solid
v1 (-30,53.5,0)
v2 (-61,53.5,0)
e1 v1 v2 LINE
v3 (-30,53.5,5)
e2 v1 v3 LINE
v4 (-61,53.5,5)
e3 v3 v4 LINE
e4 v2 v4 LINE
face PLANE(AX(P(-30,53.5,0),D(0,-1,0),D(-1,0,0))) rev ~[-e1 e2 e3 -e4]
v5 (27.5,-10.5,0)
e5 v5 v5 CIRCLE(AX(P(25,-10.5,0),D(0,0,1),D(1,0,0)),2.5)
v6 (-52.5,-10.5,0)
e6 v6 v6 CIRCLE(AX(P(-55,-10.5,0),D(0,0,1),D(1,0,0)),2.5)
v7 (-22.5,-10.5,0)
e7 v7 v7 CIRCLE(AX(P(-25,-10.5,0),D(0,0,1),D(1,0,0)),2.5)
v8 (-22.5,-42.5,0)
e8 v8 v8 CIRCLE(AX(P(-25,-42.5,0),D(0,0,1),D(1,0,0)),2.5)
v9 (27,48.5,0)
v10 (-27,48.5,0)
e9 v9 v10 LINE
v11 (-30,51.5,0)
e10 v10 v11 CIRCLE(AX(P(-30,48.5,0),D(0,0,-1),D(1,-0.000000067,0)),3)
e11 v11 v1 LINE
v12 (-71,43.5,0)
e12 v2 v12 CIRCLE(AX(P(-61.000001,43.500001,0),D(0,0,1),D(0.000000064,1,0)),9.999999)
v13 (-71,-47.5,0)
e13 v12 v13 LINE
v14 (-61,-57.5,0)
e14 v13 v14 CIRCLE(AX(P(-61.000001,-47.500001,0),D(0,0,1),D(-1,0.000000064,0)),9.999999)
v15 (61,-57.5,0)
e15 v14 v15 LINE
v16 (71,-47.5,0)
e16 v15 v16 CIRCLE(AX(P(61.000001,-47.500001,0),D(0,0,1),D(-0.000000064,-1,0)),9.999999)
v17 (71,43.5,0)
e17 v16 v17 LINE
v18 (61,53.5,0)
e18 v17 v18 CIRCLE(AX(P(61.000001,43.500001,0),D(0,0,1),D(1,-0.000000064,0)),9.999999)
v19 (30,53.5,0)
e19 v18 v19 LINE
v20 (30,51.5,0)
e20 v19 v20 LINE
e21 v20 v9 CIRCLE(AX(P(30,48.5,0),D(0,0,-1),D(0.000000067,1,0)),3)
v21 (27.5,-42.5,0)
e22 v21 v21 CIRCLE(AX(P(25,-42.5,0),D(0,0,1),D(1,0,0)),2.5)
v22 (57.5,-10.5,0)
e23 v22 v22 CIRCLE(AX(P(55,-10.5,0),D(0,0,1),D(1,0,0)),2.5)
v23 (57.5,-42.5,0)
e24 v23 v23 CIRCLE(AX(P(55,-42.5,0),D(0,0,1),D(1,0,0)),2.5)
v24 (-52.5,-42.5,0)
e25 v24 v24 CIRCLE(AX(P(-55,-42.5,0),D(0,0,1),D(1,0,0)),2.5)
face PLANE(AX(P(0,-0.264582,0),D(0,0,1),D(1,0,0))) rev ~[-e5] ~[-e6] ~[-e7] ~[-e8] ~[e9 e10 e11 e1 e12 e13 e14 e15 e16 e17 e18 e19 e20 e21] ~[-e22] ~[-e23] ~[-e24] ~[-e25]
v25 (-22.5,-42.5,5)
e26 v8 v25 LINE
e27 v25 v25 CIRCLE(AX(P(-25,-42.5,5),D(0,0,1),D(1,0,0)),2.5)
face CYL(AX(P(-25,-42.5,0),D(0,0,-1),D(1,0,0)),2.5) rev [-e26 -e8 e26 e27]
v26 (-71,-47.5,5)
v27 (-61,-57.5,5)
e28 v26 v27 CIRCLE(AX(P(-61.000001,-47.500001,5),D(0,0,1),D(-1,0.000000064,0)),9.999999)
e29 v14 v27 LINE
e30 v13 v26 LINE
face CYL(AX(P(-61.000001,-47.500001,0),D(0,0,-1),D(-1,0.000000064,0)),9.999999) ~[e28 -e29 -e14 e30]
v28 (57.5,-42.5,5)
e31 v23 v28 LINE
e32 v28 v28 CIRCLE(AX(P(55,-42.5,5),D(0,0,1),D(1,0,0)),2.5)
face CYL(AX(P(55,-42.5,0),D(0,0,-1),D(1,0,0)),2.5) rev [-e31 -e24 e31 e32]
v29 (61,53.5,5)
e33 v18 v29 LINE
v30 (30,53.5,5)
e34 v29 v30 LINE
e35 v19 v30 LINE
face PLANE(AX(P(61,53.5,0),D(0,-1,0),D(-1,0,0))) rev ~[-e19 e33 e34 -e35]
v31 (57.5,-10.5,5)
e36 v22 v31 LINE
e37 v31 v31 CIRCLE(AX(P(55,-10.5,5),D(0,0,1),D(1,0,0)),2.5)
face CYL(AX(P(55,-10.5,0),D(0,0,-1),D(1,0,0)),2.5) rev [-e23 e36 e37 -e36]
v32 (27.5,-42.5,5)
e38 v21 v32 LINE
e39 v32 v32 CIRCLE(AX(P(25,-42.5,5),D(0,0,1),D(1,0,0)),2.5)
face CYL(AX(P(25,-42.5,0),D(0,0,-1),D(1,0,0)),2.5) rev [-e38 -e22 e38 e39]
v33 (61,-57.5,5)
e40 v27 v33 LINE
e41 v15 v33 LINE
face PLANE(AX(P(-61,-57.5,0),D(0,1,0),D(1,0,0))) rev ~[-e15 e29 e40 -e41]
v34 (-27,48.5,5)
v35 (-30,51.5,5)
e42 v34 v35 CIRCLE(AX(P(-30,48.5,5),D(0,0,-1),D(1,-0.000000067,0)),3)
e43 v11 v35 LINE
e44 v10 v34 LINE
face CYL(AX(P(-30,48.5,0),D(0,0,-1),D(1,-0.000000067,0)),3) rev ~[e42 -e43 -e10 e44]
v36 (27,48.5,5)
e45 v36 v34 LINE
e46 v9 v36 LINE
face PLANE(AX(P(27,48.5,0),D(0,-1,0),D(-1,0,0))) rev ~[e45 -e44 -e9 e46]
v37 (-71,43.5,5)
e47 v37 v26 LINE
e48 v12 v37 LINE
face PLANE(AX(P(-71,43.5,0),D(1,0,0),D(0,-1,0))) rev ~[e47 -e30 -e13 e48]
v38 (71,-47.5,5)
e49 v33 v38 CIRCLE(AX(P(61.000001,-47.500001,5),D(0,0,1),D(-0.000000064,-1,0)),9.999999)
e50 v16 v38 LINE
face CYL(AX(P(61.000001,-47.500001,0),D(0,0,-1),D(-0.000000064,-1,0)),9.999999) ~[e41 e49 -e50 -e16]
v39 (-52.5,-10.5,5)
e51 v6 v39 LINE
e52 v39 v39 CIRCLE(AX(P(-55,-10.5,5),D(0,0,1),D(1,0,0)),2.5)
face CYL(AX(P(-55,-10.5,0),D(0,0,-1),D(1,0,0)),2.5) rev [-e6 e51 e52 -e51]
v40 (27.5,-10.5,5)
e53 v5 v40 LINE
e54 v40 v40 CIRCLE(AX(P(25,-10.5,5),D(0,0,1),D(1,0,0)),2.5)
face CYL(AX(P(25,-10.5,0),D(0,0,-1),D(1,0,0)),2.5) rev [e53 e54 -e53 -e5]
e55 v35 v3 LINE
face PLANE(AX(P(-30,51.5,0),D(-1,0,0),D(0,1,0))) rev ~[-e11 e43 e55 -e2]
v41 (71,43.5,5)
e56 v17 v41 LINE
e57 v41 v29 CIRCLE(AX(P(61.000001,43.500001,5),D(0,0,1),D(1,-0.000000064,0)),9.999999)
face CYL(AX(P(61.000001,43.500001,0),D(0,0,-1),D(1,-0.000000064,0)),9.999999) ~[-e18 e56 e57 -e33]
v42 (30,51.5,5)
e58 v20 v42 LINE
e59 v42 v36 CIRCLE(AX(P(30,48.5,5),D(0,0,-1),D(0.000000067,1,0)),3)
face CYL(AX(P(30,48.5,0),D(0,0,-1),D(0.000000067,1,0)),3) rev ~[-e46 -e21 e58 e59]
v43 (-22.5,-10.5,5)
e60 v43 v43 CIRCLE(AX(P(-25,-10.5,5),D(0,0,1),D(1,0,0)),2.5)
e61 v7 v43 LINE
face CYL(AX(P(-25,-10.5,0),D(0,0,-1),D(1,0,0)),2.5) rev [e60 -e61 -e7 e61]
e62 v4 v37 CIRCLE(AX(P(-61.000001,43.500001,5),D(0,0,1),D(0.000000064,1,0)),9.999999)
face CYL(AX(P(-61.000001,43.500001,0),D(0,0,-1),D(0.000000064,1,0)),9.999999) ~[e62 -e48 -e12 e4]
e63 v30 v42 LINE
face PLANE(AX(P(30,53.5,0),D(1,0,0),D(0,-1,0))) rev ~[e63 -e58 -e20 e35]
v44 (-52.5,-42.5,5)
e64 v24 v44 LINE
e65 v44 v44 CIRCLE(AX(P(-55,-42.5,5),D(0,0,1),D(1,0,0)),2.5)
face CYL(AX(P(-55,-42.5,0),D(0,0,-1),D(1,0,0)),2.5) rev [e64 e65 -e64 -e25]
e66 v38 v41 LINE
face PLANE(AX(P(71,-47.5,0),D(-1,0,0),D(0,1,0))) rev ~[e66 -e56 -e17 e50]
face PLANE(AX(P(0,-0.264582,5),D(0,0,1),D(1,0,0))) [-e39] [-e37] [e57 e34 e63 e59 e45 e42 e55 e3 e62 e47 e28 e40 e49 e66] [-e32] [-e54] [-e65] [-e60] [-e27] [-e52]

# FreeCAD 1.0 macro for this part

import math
import FreeCAD as App
import Part
import Sketcher

V = App.Vector

doc = App.newDocument("Part")
body = doc.addObject("PartDesign::Body", "Body")

sketch1 = body.newObject("Sketcher::SketchObject", "Sketch")
sketch1.AttachmentSupport = (doc.getObject("XY_Plane"), [""])
sketch1.MapMode = "FlatFace"
sketch1.addGeometry([
    Part.ArcOfCircle(Part.Circle(V(30, 48.5, 0), V(0, 0, 1), 3), math.radians(-180), math.radians(90)),
    Part.LineSegment(V(27, 48.5, 0), V(-27, 48.5, 0)),
    Part.ArcOfCircle(Part.Circle(V(-30, 48.5, 0), V(0, 0, 1), 3), math.radians(90), math.radians(360)),
    Part.LineSegment(V(-30, 51.5, 0), V(-30, 53.5, 0)),
    Part.LineSegment(V(-30, 53.5, 0), V(-61, 53.5, 0)),
    Part.ArcOfCircle(Part.Circle(V(-61, 43.5, 0), V(0, 0, 1), 10), math.radians(90), math.radians(180)),
    Part.LineSegment(V(-71, 43.5, 0), V(-71, -47.5, 0)),
    Part.ArcOfCircle(Part.Circle(V(-61, -47.5, 0), V(0, 0, 1), 10), math.radians(180), math.radians(270)),
    Part.LineSegment(V(-61, -57.5, 0), V(61, -57.5, 0)),
    Part.ArcOfCircle(Part.Circle(V(61, -47.5, 0), V(0, 0, 1), 10), math.radians(-90), math.radians(0)),
    Part.LineSegment(V(71, -47.5, 0), V(71, 43.5, 0)),
    Part.ArcOfCircle(Part.Circle(V(61, 43.5, 0), V(0, 0, 1), 10), math.radians(0), math.radians(90)),
    Part.LineSegment(V(61, 53.5, 0), V(30, 53.5, 0)),
    Part.LineSegment(V(30, 53.5, 0), V(30, 51.5, 0)),
    Part.Circle(V(-55, -42.5, 0), V(0, 0, 1), 2.5),
    Part.Circle(V(-25, -42.5, 0), V(0, 0, 1), 2.5),
    Part.Circle(V(25, -42.5, 0), V(0, 0, 1), 2.5),
    Part.Circle(V(55, -42.5, 0), V(0, 0, 1), 2.5),
    Part.Circle(V(-55, -10.5, 0), V(0, 0, 1), 2.5),
    Part.Circle(V(-25, -10.5, 0), V(0, 0, 1), 2.5),
    Part.Circle(V(25, -10.5, 0), V(0, 0, 1), 2.5),
    Part.Circle(V(55, -10.5, 0), V(0, 0, 1), 2.5),
], False)
sketch1.addConstraint([
    Sketcher.Constraint("Coincident", 0, 1, 1, 1),
    Sketcher.Constraint("Coincident", 1, 2, 2, 2),
    Sketcher.Constraint("Coincident", 2, 1, 3, 1),
    Sketcher.Constraint("Coincident", 3, 2, 4, 1),
    Sketcher.Constraint("Tangent", 4, 2, 5, 1),
    Sketcher.Constraint("Tangent", 5, 2, 6, 1),
    Sketcher.Constraint("Tangent", 6, 2, 7, 1),
    Sketcher.Constraint("Tangent", 7, 2, 8, 1),
    Sketcher.Constraint("Tangent", 8, 2, 9, 1),
    Sketcher.Constraint("Tangent", 9, 2, 10, 1),
    Sketcher.Constraint("Tangent", 10, 2, 11, 1),
    Sketcher.Constraint("Tangent", 11, 2, 12, 1),
    Sketcher.Constraint("Coincident", 12, 2, 13, 1),
    Sketcher.Constraint("Coincident", 13, 2, 0, 2),
    Sketcher.Constraint("Horizontal", 1),
    Sketcher.Constraint("Vertical", 3),
    Sketcher.Constraint("Horizontal", 4),
    Sketcher.Constraint("Vertical", 6),
    Sketcher.Constraint("Horizontal", 8),
    Sketcher.Constraint("Vertical", 10),
    Sketcher.Constraint("Horizontal", 12),
    Sketcher.Constraint("Vertical", 13),
    Sketcher.Constraint("Equal", 0, 2),
    Sketcher.Constraint("Equal", 5, 7),
    Sketcher.Constraint("Equal", 7, 9),
    Sketcher.Constraint("Equal", 9, 11),
    Sketcher.Constraint("Equal", 14, 15),
    Sketcher.Constraint("Equal", 15, 16),
    Sketcher.Constraint("Equal", 16, 17),
    Sketcher.Constraint("Equal", 17, 18),
    Sketcher.Constraint("Equal", 18, 19),
    Sketcher.Constraint("Equal", 19, 20),
    Sketcher.Constraint("Equal", 20, 21),
    Sketcher.Constraint("Symmetric", 0, 3, 2, 3, -2),
    Sketcher.Constraint("Symmetric", 5, 3, 11, 3, -2),
    Sketcher.Constraint("Symmetric", 15, 3, 16, 3, -2),
    Sketcher.Constraint("Symmetric", 14, 3, 17, 3, -2),
    Sketcher.Constraint("Symmetric", 19, 3, 20, 3, -2),
    Sketcher.Constraint("Symmetric", 18, 3, 21, 3, -2),
    Sketcher.Constraint("Horizontal", 14, 3, 15, 3),
    Sketcher.Constraint("Horizontal", 18, 3, 19, 3),
    Sketcher.Constraint("Horizontal", 2, 3, 0, 1),
    Sketcher.Constraint("Vertical", 14, 3, 18, 3),
    Sketcher.Constraint("Vertical", 15, 3, 19, 3),
    Sketcher.Constraint("Vertical", 0, 3, 12, 2),
    Sketcher.Constraint("Equal", 4, 12),
    Sketcher.Constraint("Diameter", 14, 5.0),
    Sketcher.Constraint("Radius", 0, 3.0),
    Sketcher.Constraint("Radius", 5, 9.999999),
    Sketcher.Constraint("DistanceX", 1, 2, 1, 1, 54.0),
    Sketcher.Constraint("DistanceX", 4, 2, 4, 1, 31.0),
    Sketcher.Constraint("DistanceY", 3, 1, 3, 2, 2.0),
    Sketcher.Constraint("DistanceY", 6, 2, 6, 1, 91.0),
    Sketcher.Constraint("DistanceX", 14, 3, -1, 1, 55.0),
    Sketcher.Constraint("DistanceX", 15, 3, -1, 1, 25.0),
    Sketcher.Constraint("DistanceY", 7, 3, 14, 3, 5.000001),
    Sketcher.Constraint("DistanceY", 14, 3, 18, 3, 32.0),
    Sketcher.Constraint("DistanceY", -1, 1, 0, 3, 48.5),
])
pad1 = body.newObject("PartDesign::Pad", "Pad")
pad1.Profile = sketch1
pad1.Length = 5

doc.recompute()
